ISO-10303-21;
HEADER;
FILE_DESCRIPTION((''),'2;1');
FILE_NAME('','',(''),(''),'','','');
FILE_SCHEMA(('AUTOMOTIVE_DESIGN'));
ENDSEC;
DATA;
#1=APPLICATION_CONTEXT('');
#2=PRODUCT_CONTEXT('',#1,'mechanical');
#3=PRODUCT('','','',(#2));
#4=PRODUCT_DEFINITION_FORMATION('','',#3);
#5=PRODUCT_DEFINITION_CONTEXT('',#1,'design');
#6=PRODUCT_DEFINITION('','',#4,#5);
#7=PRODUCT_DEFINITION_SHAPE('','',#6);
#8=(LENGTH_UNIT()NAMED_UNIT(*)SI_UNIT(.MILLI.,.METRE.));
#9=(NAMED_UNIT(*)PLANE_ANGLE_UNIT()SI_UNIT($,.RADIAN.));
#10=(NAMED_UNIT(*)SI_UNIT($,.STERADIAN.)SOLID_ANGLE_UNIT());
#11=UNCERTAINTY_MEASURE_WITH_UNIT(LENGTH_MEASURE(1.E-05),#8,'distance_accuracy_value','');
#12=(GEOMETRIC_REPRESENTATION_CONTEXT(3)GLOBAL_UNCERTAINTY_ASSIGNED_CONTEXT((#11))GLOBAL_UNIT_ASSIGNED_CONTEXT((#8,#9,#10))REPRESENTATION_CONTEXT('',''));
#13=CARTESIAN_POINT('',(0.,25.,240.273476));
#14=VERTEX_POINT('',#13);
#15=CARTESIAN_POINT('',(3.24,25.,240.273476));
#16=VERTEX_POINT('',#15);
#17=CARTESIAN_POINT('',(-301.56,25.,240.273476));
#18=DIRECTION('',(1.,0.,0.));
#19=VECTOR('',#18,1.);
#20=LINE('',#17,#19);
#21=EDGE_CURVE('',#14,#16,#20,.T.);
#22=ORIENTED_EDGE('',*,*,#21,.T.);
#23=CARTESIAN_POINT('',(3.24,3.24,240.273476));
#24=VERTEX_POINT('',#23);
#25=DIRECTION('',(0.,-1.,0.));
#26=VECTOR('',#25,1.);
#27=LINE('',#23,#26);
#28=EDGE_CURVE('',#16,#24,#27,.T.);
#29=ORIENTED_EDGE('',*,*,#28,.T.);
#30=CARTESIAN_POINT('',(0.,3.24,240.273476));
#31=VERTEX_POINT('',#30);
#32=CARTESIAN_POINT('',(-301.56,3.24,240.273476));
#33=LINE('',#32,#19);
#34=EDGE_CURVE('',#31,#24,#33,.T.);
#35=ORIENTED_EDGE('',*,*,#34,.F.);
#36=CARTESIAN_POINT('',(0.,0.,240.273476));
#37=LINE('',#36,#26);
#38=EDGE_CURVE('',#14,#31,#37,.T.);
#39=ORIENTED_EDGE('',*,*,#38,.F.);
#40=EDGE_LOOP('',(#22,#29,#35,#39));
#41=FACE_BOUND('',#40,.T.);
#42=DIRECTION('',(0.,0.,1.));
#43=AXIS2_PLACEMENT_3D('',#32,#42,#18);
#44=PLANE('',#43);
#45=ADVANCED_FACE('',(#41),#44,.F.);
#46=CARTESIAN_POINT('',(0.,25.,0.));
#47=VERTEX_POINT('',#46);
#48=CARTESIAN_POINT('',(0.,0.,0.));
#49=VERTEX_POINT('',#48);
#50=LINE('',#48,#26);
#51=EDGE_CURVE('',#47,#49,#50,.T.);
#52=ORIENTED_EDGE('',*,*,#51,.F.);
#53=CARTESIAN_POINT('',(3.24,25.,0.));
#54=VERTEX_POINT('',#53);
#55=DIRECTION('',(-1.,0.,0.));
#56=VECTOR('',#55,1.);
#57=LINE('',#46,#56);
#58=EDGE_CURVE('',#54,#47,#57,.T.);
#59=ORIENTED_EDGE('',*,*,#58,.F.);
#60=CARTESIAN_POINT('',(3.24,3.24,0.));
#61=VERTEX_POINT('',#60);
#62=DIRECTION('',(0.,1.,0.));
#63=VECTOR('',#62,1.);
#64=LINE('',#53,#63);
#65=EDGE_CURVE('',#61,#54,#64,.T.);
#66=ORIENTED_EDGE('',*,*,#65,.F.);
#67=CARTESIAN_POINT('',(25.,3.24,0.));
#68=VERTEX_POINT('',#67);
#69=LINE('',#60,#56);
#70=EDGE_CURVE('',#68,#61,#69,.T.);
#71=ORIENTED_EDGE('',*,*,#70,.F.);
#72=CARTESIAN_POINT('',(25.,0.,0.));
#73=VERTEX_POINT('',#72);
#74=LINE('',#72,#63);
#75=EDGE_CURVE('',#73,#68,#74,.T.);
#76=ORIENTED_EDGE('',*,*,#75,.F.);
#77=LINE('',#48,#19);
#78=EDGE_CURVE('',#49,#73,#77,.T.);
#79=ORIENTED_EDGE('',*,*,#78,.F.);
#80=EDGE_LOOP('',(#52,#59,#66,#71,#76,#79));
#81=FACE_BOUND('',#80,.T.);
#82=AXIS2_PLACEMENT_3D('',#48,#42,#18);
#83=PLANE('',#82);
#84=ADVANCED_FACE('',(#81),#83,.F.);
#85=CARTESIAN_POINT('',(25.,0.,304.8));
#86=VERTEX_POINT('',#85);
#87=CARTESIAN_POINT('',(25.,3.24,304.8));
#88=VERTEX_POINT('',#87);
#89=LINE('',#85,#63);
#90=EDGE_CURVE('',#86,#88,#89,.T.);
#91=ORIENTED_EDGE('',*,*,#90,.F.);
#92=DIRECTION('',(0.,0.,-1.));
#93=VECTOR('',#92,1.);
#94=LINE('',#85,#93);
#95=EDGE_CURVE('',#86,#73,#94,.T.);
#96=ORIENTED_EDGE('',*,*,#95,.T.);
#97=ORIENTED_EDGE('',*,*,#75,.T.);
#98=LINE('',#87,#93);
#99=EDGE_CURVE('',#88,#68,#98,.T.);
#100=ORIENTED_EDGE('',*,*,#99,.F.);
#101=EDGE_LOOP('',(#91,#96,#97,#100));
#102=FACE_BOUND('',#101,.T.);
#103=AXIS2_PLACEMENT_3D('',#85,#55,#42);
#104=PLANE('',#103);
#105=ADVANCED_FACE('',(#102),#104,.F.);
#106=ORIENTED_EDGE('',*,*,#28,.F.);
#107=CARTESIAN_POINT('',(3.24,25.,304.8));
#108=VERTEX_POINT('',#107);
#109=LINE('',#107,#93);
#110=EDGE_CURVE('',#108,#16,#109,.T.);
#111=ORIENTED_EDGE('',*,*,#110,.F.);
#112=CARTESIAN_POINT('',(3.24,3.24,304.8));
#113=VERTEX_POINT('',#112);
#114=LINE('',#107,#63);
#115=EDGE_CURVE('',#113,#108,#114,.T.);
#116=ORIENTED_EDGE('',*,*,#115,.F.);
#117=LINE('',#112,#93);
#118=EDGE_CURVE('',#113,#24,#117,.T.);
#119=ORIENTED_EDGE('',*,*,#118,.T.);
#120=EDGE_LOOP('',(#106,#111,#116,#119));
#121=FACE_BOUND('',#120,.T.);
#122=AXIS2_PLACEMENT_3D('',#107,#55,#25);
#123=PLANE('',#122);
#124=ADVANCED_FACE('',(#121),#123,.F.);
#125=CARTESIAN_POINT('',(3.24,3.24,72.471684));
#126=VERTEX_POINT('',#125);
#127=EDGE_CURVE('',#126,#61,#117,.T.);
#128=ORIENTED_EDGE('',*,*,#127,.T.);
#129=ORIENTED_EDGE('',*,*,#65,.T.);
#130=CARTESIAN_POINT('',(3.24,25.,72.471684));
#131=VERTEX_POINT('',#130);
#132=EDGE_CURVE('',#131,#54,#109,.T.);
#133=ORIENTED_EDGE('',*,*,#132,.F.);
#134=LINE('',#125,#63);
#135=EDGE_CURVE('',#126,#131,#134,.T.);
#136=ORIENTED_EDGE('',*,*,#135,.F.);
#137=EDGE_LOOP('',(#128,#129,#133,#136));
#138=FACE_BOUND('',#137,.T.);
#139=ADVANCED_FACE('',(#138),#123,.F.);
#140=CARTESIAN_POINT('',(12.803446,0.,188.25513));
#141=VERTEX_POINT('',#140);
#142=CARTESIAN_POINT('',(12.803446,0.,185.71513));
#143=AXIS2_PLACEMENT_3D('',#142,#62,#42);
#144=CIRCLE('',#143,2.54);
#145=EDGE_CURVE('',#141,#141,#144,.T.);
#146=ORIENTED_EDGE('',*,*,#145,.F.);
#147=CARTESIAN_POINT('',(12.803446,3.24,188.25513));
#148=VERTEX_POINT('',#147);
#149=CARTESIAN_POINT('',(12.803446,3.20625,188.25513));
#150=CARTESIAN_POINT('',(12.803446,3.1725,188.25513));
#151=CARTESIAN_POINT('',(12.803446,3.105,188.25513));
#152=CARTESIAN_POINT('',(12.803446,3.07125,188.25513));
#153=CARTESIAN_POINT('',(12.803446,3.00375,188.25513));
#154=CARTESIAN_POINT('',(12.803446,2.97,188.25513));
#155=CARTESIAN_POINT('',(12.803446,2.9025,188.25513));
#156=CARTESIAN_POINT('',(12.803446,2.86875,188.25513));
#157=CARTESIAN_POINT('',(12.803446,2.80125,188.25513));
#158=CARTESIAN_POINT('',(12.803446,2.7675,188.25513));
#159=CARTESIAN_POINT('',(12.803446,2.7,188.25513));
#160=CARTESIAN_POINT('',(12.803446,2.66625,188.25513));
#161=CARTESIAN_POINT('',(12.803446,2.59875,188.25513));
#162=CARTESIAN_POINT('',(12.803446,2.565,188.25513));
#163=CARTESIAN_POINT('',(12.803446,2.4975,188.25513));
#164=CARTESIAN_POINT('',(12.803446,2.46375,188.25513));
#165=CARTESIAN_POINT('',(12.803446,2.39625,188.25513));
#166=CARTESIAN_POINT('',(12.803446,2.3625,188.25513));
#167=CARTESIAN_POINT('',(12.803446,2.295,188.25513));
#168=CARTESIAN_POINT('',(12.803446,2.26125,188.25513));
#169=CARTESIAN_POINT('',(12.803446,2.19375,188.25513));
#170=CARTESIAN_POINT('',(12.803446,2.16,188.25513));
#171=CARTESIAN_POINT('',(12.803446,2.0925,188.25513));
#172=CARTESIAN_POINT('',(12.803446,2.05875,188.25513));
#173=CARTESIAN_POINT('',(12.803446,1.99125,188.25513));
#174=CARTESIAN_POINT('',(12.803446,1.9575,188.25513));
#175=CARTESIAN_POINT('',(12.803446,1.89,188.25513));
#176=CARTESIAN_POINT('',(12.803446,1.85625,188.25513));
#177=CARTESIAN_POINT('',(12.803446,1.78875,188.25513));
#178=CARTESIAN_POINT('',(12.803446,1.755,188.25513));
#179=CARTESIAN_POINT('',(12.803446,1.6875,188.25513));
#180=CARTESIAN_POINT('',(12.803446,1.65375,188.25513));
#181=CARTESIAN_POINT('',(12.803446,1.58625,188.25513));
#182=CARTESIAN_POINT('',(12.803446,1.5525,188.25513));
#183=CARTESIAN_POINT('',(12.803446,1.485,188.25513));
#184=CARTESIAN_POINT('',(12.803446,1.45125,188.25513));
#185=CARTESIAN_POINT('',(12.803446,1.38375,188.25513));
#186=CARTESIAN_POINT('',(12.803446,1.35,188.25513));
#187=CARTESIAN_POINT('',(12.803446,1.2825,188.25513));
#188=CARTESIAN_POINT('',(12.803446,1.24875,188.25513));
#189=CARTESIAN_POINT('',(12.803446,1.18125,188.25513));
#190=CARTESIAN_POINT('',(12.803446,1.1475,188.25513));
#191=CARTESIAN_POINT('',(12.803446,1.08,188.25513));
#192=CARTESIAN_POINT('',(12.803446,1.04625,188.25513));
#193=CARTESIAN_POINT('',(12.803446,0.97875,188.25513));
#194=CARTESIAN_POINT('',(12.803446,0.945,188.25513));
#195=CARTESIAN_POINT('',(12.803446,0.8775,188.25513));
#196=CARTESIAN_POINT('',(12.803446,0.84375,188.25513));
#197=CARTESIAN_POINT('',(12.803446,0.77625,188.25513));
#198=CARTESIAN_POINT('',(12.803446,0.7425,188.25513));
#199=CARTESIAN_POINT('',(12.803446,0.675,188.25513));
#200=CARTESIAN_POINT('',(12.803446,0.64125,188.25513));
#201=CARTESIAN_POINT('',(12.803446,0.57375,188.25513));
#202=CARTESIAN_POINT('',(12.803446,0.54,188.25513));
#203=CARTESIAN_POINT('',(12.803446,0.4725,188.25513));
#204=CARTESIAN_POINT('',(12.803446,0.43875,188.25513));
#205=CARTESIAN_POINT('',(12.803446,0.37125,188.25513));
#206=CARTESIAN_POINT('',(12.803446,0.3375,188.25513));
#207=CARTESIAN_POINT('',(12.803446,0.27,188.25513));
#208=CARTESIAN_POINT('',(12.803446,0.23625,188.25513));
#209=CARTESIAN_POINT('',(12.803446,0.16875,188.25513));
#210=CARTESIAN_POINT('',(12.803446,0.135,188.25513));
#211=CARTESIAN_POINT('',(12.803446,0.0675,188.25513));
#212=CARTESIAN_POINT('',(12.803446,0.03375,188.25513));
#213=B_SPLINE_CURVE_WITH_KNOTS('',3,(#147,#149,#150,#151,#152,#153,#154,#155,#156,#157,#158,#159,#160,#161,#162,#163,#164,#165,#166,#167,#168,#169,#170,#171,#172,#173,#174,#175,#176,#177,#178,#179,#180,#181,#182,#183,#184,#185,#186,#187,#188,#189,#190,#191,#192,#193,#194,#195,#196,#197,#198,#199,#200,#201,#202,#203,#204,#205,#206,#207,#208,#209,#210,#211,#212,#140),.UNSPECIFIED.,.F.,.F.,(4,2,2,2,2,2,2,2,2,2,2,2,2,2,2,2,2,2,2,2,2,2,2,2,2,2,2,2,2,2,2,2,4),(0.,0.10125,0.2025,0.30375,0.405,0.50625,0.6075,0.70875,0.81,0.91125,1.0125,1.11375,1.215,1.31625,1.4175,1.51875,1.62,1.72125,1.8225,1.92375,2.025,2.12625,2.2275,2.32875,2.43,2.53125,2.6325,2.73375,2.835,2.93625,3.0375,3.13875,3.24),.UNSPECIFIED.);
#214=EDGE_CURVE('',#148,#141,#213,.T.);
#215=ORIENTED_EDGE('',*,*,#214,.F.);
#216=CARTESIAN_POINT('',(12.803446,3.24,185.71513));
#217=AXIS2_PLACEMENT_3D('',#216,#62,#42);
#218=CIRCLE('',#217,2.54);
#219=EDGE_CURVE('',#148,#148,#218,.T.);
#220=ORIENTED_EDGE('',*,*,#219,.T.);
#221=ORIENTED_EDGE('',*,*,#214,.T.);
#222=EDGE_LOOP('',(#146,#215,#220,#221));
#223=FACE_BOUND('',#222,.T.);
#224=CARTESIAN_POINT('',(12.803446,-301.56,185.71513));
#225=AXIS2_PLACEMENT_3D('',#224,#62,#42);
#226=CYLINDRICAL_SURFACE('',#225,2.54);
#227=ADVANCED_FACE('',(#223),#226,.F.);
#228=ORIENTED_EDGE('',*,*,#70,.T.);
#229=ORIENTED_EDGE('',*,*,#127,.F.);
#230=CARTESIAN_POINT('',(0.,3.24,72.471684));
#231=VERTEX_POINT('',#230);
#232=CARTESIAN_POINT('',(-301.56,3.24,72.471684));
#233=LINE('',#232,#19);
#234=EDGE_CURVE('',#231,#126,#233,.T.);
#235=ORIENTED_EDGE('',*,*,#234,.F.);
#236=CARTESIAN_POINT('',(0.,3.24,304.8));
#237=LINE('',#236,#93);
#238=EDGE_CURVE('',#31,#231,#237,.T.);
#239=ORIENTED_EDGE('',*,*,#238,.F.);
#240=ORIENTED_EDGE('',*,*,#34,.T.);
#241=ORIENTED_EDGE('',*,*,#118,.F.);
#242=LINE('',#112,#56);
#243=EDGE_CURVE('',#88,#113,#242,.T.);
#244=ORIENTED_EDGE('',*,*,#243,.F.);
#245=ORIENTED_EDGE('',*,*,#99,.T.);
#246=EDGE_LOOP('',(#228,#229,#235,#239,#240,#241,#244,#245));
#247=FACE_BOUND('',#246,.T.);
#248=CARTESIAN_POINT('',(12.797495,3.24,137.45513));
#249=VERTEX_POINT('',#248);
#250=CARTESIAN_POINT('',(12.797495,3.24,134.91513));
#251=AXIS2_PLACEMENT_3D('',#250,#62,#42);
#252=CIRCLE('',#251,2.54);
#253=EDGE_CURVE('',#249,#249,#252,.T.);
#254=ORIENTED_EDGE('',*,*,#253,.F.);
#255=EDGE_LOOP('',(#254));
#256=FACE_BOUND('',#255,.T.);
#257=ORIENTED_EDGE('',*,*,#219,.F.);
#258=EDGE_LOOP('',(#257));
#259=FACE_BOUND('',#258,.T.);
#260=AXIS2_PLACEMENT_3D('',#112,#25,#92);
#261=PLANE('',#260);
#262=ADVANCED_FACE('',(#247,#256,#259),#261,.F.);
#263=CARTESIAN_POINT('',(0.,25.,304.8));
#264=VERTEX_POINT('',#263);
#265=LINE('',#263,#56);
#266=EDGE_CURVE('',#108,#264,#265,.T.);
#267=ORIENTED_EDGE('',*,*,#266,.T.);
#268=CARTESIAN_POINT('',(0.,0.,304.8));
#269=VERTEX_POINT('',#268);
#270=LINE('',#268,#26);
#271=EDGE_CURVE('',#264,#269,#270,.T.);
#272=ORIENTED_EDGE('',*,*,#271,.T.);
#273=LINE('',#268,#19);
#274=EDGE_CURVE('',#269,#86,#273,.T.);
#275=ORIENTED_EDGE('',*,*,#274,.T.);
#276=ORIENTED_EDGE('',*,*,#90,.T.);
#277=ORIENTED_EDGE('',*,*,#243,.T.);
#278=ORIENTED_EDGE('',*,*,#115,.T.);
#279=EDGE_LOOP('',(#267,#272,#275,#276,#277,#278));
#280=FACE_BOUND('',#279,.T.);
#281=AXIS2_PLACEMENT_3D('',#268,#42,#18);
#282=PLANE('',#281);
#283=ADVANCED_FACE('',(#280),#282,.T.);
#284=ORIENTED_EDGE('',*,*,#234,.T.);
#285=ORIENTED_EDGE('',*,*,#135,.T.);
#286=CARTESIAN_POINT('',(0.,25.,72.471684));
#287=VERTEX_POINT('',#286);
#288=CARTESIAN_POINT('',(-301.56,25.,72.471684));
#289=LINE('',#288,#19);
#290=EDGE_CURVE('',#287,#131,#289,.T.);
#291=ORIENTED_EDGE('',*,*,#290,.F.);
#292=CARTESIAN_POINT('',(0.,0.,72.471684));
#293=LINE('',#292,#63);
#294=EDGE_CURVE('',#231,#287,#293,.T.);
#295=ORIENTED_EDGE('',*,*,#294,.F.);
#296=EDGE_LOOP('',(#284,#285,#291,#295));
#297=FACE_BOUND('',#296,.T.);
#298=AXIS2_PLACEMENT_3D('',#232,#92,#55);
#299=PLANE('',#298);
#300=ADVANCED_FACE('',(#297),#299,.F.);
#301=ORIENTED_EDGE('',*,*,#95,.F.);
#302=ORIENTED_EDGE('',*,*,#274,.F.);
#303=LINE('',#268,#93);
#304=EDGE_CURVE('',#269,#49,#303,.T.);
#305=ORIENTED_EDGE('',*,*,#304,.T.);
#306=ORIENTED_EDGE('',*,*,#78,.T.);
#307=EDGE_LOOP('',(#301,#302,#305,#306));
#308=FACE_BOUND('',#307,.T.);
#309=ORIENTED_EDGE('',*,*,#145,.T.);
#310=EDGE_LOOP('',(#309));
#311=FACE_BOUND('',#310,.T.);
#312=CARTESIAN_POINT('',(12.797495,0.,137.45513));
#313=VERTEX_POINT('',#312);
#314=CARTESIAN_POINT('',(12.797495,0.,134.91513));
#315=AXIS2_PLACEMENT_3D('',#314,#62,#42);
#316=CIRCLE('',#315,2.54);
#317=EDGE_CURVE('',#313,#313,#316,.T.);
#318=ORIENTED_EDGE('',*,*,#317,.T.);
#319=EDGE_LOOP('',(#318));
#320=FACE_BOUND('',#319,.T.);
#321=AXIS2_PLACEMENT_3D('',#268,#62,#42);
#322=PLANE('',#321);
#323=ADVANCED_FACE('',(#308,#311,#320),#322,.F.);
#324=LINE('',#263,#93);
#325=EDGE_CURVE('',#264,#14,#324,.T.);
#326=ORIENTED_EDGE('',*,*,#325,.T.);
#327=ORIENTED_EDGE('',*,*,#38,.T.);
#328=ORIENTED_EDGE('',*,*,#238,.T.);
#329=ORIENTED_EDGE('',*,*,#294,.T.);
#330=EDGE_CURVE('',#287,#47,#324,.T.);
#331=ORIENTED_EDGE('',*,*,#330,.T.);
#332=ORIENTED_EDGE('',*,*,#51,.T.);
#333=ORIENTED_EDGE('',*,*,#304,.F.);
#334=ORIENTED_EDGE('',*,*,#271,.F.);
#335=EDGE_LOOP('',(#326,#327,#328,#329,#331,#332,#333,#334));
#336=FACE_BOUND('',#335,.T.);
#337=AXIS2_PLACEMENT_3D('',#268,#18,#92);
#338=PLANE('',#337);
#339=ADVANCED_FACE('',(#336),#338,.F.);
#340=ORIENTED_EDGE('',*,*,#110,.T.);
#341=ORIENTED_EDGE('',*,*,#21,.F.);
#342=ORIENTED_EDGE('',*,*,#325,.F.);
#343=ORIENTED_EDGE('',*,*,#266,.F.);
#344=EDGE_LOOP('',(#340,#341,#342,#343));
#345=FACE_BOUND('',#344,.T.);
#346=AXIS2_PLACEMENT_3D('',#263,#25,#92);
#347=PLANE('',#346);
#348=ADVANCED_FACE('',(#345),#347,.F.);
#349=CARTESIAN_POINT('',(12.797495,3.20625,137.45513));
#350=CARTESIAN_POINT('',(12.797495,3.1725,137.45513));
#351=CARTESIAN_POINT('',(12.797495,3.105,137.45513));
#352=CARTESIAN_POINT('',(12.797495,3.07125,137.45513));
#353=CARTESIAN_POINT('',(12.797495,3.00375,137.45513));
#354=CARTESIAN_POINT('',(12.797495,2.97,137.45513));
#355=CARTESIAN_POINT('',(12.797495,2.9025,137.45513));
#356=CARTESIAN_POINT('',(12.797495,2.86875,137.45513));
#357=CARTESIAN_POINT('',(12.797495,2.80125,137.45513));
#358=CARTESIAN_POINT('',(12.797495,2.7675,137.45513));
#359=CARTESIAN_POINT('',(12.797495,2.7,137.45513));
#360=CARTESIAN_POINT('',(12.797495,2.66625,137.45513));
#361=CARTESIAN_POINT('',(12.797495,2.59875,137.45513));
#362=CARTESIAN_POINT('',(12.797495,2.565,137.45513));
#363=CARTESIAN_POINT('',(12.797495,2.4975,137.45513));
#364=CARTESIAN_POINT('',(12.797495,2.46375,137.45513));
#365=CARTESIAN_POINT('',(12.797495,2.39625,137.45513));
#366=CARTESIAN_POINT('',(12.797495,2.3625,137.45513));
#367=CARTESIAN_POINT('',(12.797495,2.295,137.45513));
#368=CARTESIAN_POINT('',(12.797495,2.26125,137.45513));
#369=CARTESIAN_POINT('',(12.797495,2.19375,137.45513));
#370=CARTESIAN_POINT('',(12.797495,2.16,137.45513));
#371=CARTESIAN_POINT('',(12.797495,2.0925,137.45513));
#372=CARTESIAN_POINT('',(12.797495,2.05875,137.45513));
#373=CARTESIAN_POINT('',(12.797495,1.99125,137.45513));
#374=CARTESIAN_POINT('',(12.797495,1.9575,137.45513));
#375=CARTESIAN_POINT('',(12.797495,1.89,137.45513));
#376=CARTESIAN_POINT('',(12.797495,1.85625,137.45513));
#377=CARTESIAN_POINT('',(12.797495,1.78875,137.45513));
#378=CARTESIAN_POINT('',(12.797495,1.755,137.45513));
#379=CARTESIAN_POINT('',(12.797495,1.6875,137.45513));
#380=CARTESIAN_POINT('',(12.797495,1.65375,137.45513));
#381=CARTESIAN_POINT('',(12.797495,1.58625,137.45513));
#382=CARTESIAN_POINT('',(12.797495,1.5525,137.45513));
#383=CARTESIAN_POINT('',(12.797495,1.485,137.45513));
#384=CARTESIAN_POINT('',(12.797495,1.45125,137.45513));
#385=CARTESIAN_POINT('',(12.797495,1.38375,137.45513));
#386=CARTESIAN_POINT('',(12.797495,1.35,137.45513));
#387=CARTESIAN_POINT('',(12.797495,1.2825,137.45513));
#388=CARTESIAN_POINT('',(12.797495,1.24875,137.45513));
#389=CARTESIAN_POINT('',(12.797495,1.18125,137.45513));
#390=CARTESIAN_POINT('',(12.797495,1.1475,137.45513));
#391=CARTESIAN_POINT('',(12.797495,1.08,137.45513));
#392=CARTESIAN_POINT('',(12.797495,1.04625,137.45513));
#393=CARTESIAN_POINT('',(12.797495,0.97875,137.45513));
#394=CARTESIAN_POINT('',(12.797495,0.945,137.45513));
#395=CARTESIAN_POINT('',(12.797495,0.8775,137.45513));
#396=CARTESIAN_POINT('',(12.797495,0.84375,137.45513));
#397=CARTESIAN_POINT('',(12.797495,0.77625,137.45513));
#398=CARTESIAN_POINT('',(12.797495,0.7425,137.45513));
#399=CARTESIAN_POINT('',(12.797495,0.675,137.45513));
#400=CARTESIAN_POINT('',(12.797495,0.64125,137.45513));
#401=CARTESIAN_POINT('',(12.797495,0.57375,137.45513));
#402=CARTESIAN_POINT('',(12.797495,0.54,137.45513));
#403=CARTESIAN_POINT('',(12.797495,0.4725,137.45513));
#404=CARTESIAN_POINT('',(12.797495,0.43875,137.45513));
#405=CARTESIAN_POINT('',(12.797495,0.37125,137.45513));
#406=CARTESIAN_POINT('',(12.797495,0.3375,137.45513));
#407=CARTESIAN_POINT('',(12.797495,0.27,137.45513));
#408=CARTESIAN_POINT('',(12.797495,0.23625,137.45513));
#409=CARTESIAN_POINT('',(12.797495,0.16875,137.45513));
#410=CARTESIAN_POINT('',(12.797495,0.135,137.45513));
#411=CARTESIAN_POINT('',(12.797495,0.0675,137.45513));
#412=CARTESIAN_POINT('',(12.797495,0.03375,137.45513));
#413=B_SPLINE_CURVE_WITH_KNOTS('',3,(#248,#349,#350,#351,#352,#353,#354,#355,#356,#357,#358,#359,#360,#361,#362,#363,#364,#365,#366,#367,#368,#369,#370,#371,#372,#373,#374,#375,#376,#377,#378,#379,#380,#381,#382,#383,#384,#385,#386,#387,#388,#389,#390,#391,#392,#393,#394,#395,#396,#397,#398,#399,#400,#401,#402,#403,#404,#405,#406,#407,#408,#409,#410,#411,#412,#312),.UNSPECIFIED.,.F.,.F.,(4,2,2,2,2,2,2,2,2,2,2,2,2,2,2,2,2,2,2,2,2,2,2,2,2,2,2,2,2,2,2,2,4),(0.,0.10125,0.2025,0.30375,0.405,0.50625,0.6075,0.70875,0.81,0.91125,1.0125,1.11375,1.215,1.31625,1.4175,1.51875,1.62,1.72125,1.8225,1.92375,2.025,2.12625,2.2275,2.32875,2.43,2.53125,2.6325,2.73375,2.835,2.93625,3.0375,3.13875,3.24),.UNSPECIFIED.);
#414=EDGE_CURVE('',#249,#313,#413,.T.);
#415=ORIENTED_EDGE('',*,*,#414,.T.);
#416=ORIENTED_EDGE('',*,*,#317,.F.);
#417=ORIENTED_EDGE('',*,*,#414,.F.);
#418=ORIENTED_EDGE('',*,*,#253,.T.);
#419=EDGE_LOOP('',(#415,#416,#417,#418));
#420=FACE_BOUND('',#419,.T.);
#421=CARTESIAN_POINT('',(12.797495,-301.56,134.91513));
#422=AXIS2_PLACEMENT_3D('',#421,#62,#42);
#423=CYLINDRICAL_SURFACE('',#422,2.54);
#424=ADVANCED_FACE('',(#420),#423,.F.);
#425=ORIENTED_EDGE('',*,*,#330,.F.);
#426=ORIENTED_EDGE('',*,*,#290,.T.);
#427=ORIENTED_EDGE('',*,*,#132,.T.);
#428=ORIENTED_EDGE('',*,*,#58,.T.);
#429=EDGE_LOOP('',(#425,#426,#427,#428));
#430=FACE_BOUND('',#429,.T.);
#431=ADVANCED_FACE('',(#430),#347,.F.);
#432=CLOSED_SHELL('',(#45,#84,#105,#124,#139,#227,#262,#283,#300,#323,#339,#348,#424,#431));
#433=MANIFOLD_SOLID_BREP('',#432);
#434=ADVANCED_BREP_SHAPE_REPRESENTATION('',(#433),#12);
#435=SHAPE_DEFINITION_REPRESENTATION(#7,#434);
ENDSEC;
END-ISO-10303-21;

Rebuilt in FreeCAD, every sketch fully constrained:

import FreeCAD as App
import Part
import Sketcher
Q = App.Units.Quantity


def add_polygon(sketch, points):
    """Adds a closed chain of lines whose ends are joined by coincident constraints."""
    first, n = sketch.GeometryCount, len(points)
    for a, b in zip(points, points[1:] + points[:1]):
        sketch.addGeometry(Part.LineSegment(App.Vector(*a, 0), App.Vector(*b, 0)), False)
    for i in range(n):
        sketch.addConstraint(Sketcher.Constraint("Coincident", first + i, 2, first + (i + 1) % n, 1))

doc = App.newDocument("Part")
body = doc.addObject("PartDesign::Body", "Body")

# Sketch on XY plane
sketch1 = body.newObject("Sketcher::SketchObject", "Sketch")
sketch1.AttachmentSupport = (doc.getObject("XY_Plane"), [""])
sketch1.MapMode = "FlatFace"
add_polygon(sketch1, [(0, 25), (0, 0), (25, 0), (25, 3.24), (3.24, 3.24), (3.24, 25)])  # lines 0-5
sketch1.addConstraint([
    Sketcher.Constraint("Vertical", 0),
    Sketcher.Constraint("Horizontal", 1),
    Sketcher.Constraint("Vertical", 2),
    Sketcher.Constraint("Horizontal", 3),
    Sketcher.Constraint("Vertical", 4),
    Sketcher.Constraint("Horizontal", 5),
    Sketcher.Constraint("Coincident", 0, 2, -1, 1),
    Sketcher.Constraint("Equal", 1, 0),
    Sketcher.Constraint("Equal", 5, 2),
    Sketcher.Constraint("DistanceX", 1, 1, 1, 2, 25.0),
    Sketcher.Constraint("DistanceX", 3, 2, 3, 1, 21.76),
])
pad1 = body.newObject("PartDesign::Pad", "Pad")
pad1.Profile = sketch1
pad1.Length = Q("12 in")

# Sketch on YZ plane
sketch2 = body.newObject("Sketcher::SketchObject", "Sketch001")
sketch2.AttachmentSupport = (doc.getObject("YZ_Plane"), [""])
sketch2.MapMode = "FlatFace"
sketch2.AttachmentOffset = App.Placement(App.Vector(0, 0, 3.24), App.Rotation())
add_polygon(sketch2, [(25, 240.273476), (3.24, 240.273476), (3.24, 72.471684), (25, 72.471684)])  # lines 0-3
sketch2.addConstraint([
    Sketcher.Constraint("Horizontal", 0),
    Sketcher.Constraint("Vertical", 1),
    Sketcher.Constraint("Horizontal", 2),
    Sketcher.Constraint("Vertical", 3),
    Sketcher.Constraint("DistanceX", 0, 2, 0, 1, 21.76),
    Sketcher.Constraint("DistanceX", -1, 1, 0, 2, 3.24),
    Sketcher.Constraint("DistanceY", 1, 2, 1, 1, 167.801792),
    Sketcher.Constraint("DistanceY", -1, 1, 0, 2, 240.273476),
])
pocket1 = body.newObject("PartDesign::Pocket", "Pocket")
pocket1.Profile = sketch2
pocket1.Length = Q("12 in")

# Sketch on XZ plane
sketch3 = body.newObject("Sketcher::SketchObject", "Sketch002")
sketch3.AttachmentSupport = (doc.getObject("XZ_Plane"), [""])
sketch3.MapMode = "FlatFace"
sketch3.AttachmentOffset = App.Placement(App.Vector(0, 0, -3.24), App.Rotation())
sketch3.addGeometry([
    Part.Circle(App.Vector(12.797495, 134.91513, 0), App.Vector(0, 0, 1), 2.54),
    Part.Circle(App.Vector(12.803446, 185.71513, 0), App.Vector(0, 0, 1), 2.54),
], False)
sketch3.addConstraint([
    Sketcher.Constraint("Equal", 0, 1),
    Sketcher.Constraint("Diameter", 0, Q("0.2 in")),
    Sketcher.Constraint("DistanceY", 0, 3, 1, 3, Q("2 in")),
    Sketcher.Constraint("DistanceY", -1, 1, 0, 3, 134.91513),
    Sketcher.Constraint("DistanceX", 0, 3, 1, 3, 0.005951),
    Sketcher.Constraint("DistanceX", -1, 1, 0, 3, 12.797495),
])
pocket2 = body.newObject("PartDesign::Pocket", "Pocket001")
pocket2.Profile = sketch3
pocket2.Length = Q("12 in")
pocket2.Reversed = True

doc.recompute()
